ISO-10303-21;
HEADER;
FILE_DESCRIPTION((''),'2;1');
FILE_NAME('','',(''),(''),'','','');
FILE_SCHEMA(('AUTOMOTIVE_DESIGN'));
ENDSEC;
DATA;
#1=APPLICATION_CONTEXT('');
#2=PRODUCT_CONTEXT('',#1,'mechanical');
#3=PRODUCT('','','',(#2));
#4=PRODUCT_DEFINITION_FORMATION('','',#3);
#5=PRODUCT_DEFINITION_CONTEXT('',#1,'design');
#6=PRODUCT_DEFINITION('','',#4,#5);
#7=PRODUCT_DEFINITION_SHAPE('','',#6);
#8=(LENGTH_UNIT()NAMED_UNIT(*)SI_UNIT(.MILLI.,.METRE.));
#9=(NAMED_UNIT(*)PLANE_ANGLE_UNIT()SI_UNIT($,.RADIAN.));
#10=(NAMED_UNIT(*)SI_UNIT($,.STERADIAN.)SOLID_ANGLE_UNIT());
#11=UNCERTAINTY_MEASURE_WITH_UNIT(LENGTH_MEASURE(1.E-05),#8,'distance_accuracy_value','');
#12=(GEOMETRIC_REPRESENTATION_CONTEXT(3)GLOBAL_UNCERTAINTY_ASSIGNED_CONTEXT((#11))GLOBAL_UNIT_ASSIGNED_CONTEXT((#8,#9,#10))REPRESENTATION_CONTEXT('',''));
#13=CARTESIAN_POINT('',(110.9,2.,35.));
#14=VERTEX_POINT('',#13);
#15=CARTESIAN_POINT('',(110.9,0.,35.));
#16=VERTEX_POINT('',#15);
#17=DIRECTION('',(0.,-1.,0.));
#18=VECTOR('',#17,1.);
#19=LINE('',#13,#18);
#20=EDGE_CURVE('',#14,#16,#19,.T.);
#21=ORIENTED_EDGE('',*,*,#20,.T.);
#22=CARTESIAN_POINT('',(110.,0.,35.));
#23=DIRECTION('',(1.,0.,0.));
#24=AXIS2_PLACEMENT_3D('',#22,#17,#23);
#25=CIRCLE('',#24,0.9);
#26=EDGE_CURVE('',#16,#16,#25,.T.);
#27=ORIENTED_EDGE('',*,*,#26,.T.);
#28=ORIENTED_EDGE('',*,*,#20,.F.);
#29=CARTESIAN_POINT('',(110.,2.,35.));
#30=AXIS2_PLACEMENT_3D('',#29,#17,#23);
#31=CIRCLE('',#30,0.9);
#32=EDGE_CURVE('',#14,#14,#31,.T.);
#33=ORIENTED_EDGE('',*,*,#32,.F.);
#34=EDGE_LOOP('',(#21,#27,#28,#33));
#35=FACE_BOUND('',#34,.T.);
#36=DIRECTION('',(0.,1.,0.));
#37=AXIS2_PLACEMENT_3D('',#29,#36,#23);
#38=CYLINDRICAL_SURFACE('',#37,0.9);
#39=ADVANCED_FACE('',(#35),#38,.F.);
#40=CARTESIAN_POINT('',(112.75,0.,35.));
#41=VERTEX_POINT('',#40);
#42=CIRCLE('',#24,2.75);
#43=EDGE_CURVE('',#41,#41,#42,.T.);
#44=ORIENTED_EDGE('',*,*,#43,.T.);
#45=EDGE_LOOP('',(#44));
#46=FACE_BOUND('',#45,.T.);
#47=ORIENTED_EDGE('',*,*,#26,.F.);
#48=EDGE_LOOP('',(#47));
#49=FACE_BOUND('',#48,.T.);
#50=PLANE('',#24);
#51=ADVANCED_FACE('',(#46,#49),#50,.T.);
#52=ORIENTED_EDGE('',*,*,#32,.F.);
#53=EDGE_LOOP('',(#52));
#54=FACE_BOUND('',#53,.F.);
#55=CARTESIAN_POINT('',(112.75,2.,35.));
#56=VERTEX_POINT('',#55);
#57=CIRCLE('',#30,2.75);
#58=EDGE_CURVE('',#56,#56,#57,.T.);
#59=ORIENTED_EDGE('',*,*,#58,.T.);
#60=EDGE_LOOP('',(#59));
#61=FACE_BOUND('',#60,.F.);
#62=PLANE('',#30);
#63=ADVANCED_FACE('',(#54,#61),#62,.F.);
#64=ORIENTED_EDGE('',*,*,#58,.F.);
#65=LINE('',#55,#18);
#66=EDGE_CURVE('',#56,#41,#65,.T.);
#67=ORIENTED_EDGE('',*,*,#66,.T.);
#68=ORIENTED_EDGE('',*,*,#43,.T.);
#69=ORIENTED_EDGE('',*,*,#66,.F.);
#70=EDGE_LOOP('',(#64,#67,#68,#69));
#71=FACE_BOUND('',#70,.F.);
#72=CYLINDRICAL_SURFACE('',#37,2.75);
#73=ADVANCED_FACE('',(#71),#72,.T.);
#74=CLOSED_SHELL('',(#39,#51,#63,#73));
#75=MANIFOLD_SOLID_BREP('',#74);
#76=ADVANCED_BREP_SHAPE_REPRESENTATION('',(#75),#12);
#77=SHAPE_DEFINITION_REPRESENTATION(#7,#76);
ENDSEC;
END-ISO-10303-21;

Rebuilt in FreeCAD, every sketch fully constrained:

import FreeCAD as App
import Part
import Sketcher
from FreeCAD import Vector

doc = App.newDocument("Part")
body = doc.addObject("PartDesign::Body", "Body")

sketch1 = body.newObject("Sketcher::SketchObject", "Sketch")
sketch1.AttachmentSupport = (doc.getObject("XY_Plane"), [""])
sketch1.MapMode = "FlatFace"
sketch1.addGeometry(Part.Circle(Vector(0, 0, 0), Vector(0, 0, 1), 0.9), False)
sketch1.addConstraint([
    Sketcher.Constraint("Coincident", 0, 3, -1, 1),
    Sketcher.Constraint("Diameter", 0, 1.8),
])
pad1 = body.newObject("PartDesign::Pad", "Pad")
pad1.Profile = sketch1
pad1.Length = 2
body2 = doc.addObject("PartDesign::Body", "Body001")

sketch2 = body2.newObject("Sketcher::SketchObject", "Sketch001")
sketch2.AttachmentSupport = (doc.getObject("XY_Plane001"), [""])
sketch2.MapMode = "FlatFace"
sketch2.addGeometry(Part.Circle(Vector(0, 0, 0), Vector(0, 0, 1), 2.75), False)
sketch2.addConstraint([
    Sketcher.Constraint("Coincident", 0, 3, -1, 1),
    Sketcher.Constraint("Diameter", 0, 5.5),
])
pad2 = body2.newObject("PartDesign::Pad", "Pad001")
pad2.Profile = sketch2
pad2.Length = 2
doc.recompute()

boolean = body2.newObject("PartDesign::Boolean", "Boolean")
boolean.Type = "Cut"
boolean.addObjects([body])
body3 = doc.addObject("PartDesign::Body", "Body002")
doc.recompute()

body2.Placement = App.Placement(Vector(110, 2, 35), App.Rotation(Vector(1, 0, 0), 90))
boolean2 = body3.newObject("PartDesign::Boolean", "Boolean001")
boolean2.Type = "Fuse"
boolean2.addObjects([body2])

doc.recompute()
